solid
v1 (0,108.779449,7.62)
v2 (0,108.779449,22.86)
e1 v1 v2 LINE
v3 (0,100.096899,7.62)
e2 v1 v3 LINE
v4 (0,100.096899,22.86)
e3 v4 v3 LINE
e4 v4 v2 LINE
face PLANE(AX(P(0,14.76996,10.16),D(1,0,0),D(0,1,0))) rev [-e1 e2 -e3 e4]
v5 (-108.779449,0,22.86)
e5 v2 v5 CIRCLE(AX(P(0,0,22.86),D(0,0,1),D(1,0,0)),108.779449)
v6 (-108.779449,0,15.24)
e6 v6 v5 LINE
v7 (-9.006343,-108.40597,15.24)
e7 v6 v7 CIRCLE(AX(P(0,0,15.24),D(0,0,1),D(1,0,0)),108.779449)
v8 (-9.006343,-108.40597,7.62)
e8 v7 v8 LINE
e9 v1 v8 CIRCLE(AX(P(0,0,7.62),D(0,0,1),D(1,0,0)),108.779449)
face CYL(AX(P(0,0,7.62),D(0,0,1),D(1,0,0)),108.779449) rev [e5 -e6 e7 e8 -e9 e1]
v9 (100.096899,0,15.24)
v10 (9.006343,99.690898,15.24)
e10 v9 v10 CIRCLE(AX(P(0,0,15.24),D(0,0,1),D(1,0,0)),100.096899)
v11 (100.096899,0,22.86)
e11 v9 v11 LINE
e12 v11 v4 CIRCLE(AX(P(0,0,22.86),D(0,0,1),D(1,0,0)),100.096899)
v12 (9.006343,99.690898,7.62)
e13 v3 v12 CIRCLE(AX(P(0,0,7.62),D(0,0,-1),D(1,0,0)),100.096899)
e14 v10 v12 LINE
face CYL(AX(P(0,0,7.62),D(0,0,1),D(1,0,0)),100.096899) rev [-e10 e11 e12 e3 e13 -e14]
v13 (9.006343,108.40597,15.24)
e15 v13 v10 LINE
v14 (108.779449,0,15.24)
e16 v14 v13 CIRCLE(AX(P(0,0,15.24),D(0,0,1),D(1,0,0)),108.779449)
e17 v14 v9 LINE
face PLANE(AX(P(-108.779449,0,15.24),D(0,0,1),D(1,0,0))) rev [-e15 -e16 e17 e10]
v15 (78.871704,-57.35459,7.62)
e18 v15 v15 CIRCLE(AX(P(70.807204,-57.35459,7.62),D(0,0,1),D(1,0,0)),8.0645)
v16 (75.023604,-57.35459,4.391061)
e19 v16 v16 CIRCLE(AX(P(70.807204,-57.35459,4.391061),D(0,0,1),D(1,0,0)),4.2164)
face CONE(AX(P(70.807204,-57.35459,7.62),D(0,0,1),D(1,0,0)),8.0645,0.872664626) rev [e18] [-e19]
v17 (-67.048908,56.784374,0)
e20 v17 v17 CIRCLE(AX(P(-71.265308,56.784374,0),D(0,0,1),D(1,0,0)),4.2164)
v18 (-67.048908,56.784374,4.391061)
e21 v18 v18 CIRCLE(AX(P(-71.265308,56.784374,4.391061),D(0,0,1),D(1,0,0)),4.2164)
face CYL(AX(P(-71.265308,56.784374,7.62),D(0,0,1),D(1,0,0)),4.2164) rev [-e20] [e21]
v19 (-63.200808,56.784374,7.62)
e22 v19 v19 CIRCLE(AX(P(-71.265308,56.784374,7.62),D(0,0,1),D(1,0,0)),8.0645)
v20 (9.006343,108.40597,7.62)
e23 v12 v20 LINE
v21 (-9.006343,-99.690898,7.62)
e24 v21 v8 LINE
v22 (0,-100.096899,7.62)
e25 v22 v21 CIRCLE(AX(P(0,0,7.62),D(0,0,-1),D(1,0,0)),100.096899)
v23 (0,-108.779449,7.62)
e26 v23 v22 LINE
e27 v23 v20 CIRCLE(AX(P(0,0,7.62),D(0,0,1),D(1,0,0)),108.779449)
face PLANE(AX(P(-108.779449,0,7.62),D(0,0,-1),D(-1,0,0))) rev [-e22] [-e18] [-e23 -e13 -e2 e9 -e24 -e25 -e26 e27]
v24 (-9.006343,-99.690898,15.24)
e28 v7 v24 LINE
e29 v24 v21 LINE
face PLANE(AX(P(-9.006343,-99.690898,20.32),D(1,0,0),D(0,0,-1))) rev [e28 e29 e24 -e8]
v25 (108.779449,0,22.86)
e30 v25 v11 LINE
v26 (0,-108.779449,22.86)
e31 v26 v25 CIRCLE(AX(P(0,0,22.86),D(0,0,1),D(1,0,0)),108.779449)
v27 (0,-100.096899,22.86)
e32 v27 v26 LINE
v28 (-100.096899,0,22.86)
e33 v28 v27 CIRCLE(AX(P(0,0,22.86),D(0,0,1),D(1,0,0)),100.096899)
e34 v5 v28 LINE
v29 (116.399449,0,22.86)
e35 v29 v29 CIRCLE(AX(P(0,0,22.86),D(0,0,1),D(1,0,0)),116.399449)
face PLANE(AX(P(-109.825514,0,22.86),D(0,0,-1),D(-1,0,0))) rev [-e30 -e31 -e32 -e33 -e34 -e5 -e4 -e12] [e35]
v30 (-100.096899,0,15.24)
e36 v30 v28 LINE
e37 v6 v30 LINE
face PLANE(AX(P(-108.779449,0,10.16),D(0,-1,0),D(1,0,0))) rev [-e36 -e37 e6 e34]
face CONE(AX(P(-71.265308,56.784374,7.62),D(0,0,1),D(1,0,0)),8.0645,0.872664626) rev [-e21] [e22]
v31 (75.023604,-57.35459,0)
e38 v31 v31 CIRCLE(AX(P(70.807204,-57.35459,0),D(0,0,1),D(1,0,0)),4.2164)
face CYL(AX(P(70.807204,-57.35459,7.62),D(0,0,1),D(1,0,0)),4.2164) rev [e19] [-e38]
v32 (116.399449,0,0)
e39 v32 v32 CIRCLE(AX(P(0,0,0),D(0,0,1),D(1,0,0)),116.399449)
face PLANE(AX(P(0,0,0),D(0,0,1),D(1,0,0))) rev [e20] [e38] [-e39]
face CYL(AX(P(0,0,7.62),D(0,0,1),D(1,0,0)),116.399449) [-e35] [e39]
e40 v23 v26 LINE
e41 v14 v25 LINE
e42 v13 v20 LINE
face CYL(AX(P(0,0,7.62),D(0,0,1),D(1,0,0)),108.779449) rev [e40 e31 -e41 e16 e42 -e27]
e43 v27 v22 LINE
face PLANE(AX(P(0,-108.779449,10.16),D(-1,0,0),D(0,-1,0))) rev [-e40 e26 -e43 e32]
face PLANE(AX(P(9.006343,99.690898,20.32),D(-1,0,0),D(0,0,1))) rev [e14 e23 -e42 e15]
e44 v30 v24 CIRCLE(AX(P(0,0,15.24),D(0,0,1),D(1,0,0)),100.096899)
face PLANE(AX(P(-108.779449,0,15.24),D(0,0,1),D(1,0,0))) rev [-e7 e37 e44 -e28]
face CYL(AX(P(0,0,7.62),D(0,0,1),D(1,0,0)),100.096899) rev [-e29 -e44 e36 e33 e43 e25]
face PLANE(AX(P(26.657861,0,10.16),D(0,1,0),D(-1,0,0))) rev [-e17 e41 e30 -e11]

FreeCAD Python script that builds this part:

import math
import FreeCAD as App
import Part
import Sketcher

V = App.Vector
Q = App.Units.Quantity

doc = App.newDocument("Part")
body = doc.addObject("PartDesign::Body", "Body")

# Sketch on XZ plane
sketch1 = doc.addObject("Sketcher::SketchObject", "Sketch")
body.addObject(sketch1)
sketch1.AttachmentSupport = (doc.XZ_Plane, [""])
sketch1.MapMode = "FlatFace"
sketch1.addGeometry([
    Part.LineSegment(V(0, 0, 0), V(-116.399449, 0, 0)),  # 0
    Part.LineSegment(V(-116.399449, 0, 0), V(-116.399449, 22.86, 0)),  # 1
    Part.LineSegment(V(-116.399449, 22.86, 0), V(-100.096899, 22.86, 0)),  # 2
    Part.LineSegment(V(-100.096899, 22.86, 0), V(-100.096899, 15.24, 0)),  # 3
    Part.LineSegment(V(-100.096899, 15.24, 0), V(-108.779449, 15.24, 0)),  # 4
    Part.LineSegment(V(-108.779449, 15.24, 0), V(-108.779449, 7.62, 0)),  # 5
    Part.LineSegment(V(-108.779449, 7.62, 0), V(0, 7.62, 0)),  # 6
    Part.LineSegment(V(0, 7.62, 0), V(0, 0, 0)),  # 7
], False)
sketch1.addConstraint([
    Sketcher.Constraint("Coincident", 0, 2, 1, 1),
    Sketcher.Constraint("Coincident", 1, 2, 2, 1),
    Sketcher.Constraint("Coincident", 2, 2, 3, 1),
    Sketcher.Constraint("Coincident", 3, 2, 4, 1),
    Sketcher.Constraint("Coincident", 4, 2, 5, 1),
    Sketcher.Constraint("Coincident", 5, 2, 6, 1),
    Sketcher.Constraint("Coincident", 6, 2, 7, 1),
    Sketcher.Constraint("Coincident", 7, 2, 0, 1),
    Sketcher.Constraint("Horizontal", 0),
    Sketcher.Constraint("Vertical", 1),
    Sketcher.Constraint("Horizontal", 2),
    Sketcher.Constraint("Vertical", 3),
    Sketcher.Constraint("Horizontal", 4),
    Sketcher.Constraint("Vertical", 5),
    Sketcher.Constraint("Horizontal", 6),
    Sketcher.Constraint("Vertical", 7),
    Sketcher.Constraint("Coincident", 7, 2, -1, 1),
    Sketcher.Constraint("Equal", 3, 5),
    Sketcher.Constraint("Equal", 5, 7),
    Sketcher.Constraint("DistanceY", 1, 1, 1, 2, Q("0.9 in")),
    Sketcher.Constraint("DistanceX", 1, 2, 4, 2, Q("0.3 in")),
    Sketcher.Constraint("DistanceX", 0, 2, 0, 1, 116.399449),
    Sketcher.Constraint("DistanceX", 2, 1, 2, 2, 16.30255),
])
revolution = doc.addObject("PartDesign::Revolution", "Revolution")
body.addObject(revolution)
revolution.Profile = sketch1
revolution.ReferenceAxis = (sketch1, ["V_Axis"])
revolution.Angle = 360

# Sketch on XY plane
sketch2 = doc.addObject("Sketcher::SketchObject", "Sketch001")
body.addObject(sketch2)
sketch2.AttachmentSupport = (doc.XY_Plane, [""])
sketch2.MapMode = "FlatFace"
sketch2.AttachmentOffset = App.Placement(V(0, 0, 0.4 * 25.4), App.Rotation())
sketch2.addGeometry([
    Part.LineSegment(V(-108.779449, 0, 0), V(-14.76996, 0, 0)),  # 0
    Part.LineSegment(V(-14.76996, 0, 0), V(0, 14.76996, 0)),  # 1
    Part.LineSegment(V(0, 14.76996, 0), V(0, 108.779449, 0)),  # 2
    Part.ArcOfCircle(Part.Circle(V(0, 0, 0), V(0, 0, 1), 108.779449), math.radians(90), math.radians(180)),  # 3
    Part.LineSegment(V(0, -24.859935, 0), V(0, -108.779449, 0)),  # 4
    Part.ArcOfCircle(Part.Circle(V(0, 0, 0), V(0, 0, 1), 108.779449), math.radians(-90), math.radians(0)),  # 5
    Part.LineSegment(V(108.779449, 0, 0), V(26.657861, 0, 0)),  # 6
    Part.LineSegment(V(26.657861, 0, 0), V(0, -24.859935, 0)),  # 7
], False)
sketch2.addConstraint([
    Sketcher.Constraint("Coincident", 0, 2, 1, 1),
    Sketcher.Constraint("Coincident", 1, 2, 2, 1),
    Sketcher.Constraint("Coincident", 2, 2, 3, 1),
    Sketcher.Constraint("Coincident", 3, 2, 0, 1),
    Sketcher.Constraint("Coincident", 4, 2, 5, 1),
    Sketcher.Constraint("Coincident", 5, 2, 6, 1),
    Sketcher.Constraint("Coincident", 6, 2, 7, 1),
    Sketcher.Constraint("Coincident", 7, 2, 4, 1),
    Sketcher.Constraint("Horizontal", 0),
    Sketcher.Constraint("Vertical", 2),
    Sketcher.Constraint("Vertical", 4),
    Sketcher.Constraint("Horizontal", 6),
    Sketcher.Constraint("Coincident", 3, 3, -1, 1),
    Sketcher.Constraint("Coincident", 5, 3, -1, 1),
    Sketcher.Constraint("Equal", 3, 5),
    Sketcher.Constraint("PointOnObject", 0, 2, -1),
    Sketcher.Constraint("PointOnObject", 1, 2, -2),
    Sketcher.Constraint("PointOnObject", 4, 2, -2),
    Sketcher.Constraint("PointOnObject", 5, 2, -1),
    Sketcher.Constraint("Equal", 0, 2),
    Sketcher.Constraint("Radius", 3, 108.779449),
    Sketcher.Constraint("DistanceX", 0, 1, 0, 2, 94.009489),
    Sketcher.Constraint("DistanceX", 6, 2, 6, 1, 82.121588),
    Sketcher.Constraint("Distance", 7, 36.45076),
])
pocket1 = doc.addObject("PartDesign::Pocket", "Pocket")
body.addObject(pocket1)
pocket1.Profile = sketch2
pocket1.Length = Q("0.5 in")
pocket1.Reversed = True

# Sketch on XY plane
sketch3 = doc.addObject("Sketcher::SketchObject", "Sketch002")
body.addObject(sketch3)
sketch3.AttachmentSupport = (doc.XY_Plane, [""])
sketch3.MapMode = "FlatFace"
sketch3.AttachmentOffset = App.Placement(V(0, 0, 0.3 * 25.4), App.Rotation())
sketch3.addGeometry([
    Part.LineSegment(V(0, 108.779449, 0), V(0, 100.096899, 0)),  # 0
    Part.ArcOfCircle(Part.Circle(V(0, 0, 0), V(0, 0, 1), 100.096899), math.radians(84.83776), math.radians(90)),  # 1
    Part.LineSegment(V(9.006343, 99.690898, 0), V(9.006343, 108.40597, 0)),  # 2
    Part.ArcOfCircle(Part.Circle(V(0, 0, 0), V(0, 0, 1), 108.779449), math.radians(85.250787), math.radians(90)),  # 3
    Part.LineSegment(V(0, -108.779449, 0), V(0, -100.096899, 0)),  # 4
    Part.ArcOfCircle(Part.Circle(V(0, 0, 0), V(0, 0, 1), 100.096899), math.radians(-95.16224), math.radians(-90)),  # 5
    Part.LineSegment(V(-9.006343, -99.690898, 0), V(-9.006343, -108.40597, 0)),  # 6
    Part.ArcOfCircle(Part.Circle(V(0, 0, 0), V(0, 0, 1), 108.779449), math.radians(-94.749213), math.radians(-90)),  # 7
], False)
sketch3.addConstraint([
    Sketcher.Constraint("Coincident", 0, 2, 1, 2),
    Sketcher.Constraint("Coincident", 1, 1, 2, 1),
    Sketcher.Constraint("Coincident", 2, 2, 3, 1),
    Sketcher.Constraint("Coincident", 3, 2, 0, 1),
    Sketcher.Constraint("Coincident", 4, 2, 5, 2),
    Sketcher.Constraint("Coincident", 5, 1, 6, 1),
    Sketcher.Constraint("Coincident", 6, 2, 7, 1),
    Sketcher.Constraint("Coincident", 7, 2, 4, 1),
    Sketcher.Constraint("Vertical", 0),
    Sketcher.Constraint("Vertical", 2),
    Sketcher.Constraint("Vertical", 4),
    Sketcher.Constraint("Vertical", 6),
    Sketcher.Constraint("Coincident", 1, 3, -1, 1),
    Sketcher.Constraint("Coincident", 3, 3, -1, 1),
    Sketcher.Constraint("Coincident", 5, 3, -1, 1),
    Sketcher.Constraint("Coincident", 7, 3, -1, 1),
    Sketcher.Constraint("Equal", 1, 5),
    Sketcher.Constraint("Equal", 3, 7),
    Sketcher.Constraint("PointOnObject", 0, 2, -2),
    Sketcher.Constraint("PointOnObject", 4, 2, -2),
    Sketcher.Constraint("Equal", 2, 6),
    Sketcher.Constraint("Radius", 1, 100.096899),
    Sketcher.Constraint("Radius", 3, 108.779449),
    Sketcher.Constraint("DistanceY", 1, 1, 0, 2, 0.406002),
])
pad1 = doc.addObject("PartDesign::Pad", "Pad")
body.addObject(pad1)
pad1.Profile = sketch3
pad1.Length = Q("0.5 in")

# Sketch on XY plane
sketch4 = doc.addObject("Sketcher::SketchObject", "Sketch003")
body.addObject(sketch4)
sketch4.AttachmentSupport = (doc.XY_Plane, [""])
sketch4.MapMode = "FlatFace"
sketch4.AttachmentOffset = App.Placement(V(0, 0, 0.3 * 25.4), App.Rotation())
sketch4.addGeometry([
    Part.Circle(V(-71.265308, 56.784374, 0), V(0, 0, 1), 4.2164),
    Part.Circle(V(70.807204, -57.35459, 0), V(0, 0, 1), 4.2164),
], False)
sketch4.addConstraint([
    Sketcher.Constraint("Equal", 0, 1),
    Sketcher.Constraint("Diameter", 0, Q("0.332 in")),
    Sketcher.Constraint("DistanceY", 1, 3, -1, 1, 57.35459),
    Sketcher.Constraint("DistanceX", 0, 3, -1, 1, 71.265308),
    Sketcher.Constraint("DistanceY", -1, 1, 0, 3, 56.784374),
    Sketcher.Constraint("DistanceX", -1, 1, 1, 3, 70.807204),
])
doc.recompute()
hole = doc.addObject("PartDesign::Hole", "Hole")
body.addObject(hole)
hole.Profile = sketch4
hole.ThreadType = "None"
hole.Diameter = Q("0.332 in")
hole.DepthType = "ThroughAll"
hole.HoleCutType = "Countersink"
hole.HoleCutDiameter = Q("0.635 in")
hole.HoleCutCountersinkAngle = 100

doc.recompute()
